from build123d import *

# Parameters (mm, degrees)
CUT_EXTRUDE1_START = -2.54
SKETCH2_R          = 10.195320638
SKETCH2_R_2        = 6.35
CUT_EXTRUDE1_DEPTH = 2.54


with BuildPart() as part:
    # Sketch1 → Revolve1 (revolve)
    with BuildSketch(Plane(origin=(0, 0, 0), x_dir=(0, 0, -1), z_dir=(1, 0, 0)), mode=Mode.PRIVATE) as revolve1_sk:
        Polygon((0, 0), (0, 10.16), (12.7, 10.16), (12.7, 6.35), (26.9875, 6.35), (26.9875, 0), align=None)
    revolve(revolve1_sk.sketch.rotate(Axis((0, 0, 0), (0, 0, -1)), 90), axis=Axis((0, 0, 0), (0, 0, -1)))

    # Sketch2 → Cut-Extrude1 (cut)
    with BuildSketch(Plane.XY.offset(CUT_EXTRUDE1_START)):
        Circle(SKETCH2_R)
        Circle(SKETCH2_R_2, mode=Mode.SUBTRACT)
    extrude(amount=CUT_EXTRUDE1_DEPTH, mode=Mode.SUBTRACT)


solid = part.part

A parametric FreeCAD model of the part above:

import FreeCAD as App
import Part
import Sketcher
Q = App.Units.Quantity


def add_polygon(sketch, points):
    """Adds a closed chain of lines whose ends are joined by coincident constraints."""
    first, n = sketch.GeometryCount, len(points)
    for a, b in zip(points, points[1:] + points[:1]):
        sketch.addGeometry(Part.LineSegment(App.Vector(*a, 0), App.Vector(*b, 0)), False)
    for i in range(n):
        sketch.addConstraint(Sketcher.Constraint("Coincident", first + i, 2, first + (i + 1) % n, 1))

doc = App.newDocument("Part")
params = doc.addObject("Spreadsheet::Sheet", "Params")
for row, (alias, value) in enumerate([
    ("sketch1_width", "0.4 in"),
    ("sketch1_height", "0.5 in"),
    ("sketch1_width2", "0.25 in"),
    ("sketch1_height2", "1.0625 in"),
    ("revolution_angle", "360 deg"),
    ("sketch2_diameter", "0.5 in"),
    ("pocket1_length", "0.1 in"),
], start=1):
    params.set(f"A{row}", alias)
    params.set(f"B{row}", "=" + value)
    params.setAlias(f"B{row}", alias)

body = doc.addObject("PartDesign::Body", "Body")

sketch1 = body.newObject("Sketcher::SketchObject", "Sketch")
sketch1.AttachmentSupport = (doc.getObject("YZ_Plane"), [""])
sketch1.MapMode = "FlatFace"
add_polygon(sketch1, [(10.2, 0), (0, 0), (0, -27), (6.3, -27), (6.3, -12.7), (10.2, -12.7)])
sketch1.addConstraint([
    Sketcher.Constraint("Horizontal", 0),
    Sketcher.Constraint("Vertical", 1),
    Sketcher.Constraint("Horizontal", 2),
    Sketcher.Constraint("Vertical", 3),
    Sketcher.Constraint("Horizontal", 4),
    Sketcher.Constraint("Vertical", 5),
    Sketcher.Constraint("Coincident", 0, 2, -1, 1),
    Sketcher.Constraint("DistanceX", 0, 2, 0, 1, Q("0.4 in")),
    Sketcher.Constraint("DistanceY", 5, 1, 5, 2, Q("0.5 in")),
    Sketcher.Constraint("DistanceX", 2, 1, 2, 2, Q("0.25 in")),
    Sketcher.Constraint("DistanceY", 1, 2, 1, 1, Q("1.0625 in")),
])
sketch1.setExpression("Constraints[13]", "Params.sketch1_width")
sketch1.setExpression("Constraints[14]", "Params.sketch1_height")
sketch1.setExpression("Constraints[15]", "Params.sketch1_width2")
sketch1.setExpression("Constraints[16]", "Params.sketch1_height2")
revolution = body.newObject("PartDesign::Revolution", "Revolution")
revolution.Profile = sketch1
revolution.ReferenceAxis = (sketch1, ["V_Axis"])
revolution.setExpression("Angle", "Params.revolution_angle")

sketch2 = body.newObject("Sketcher::SketchObject", "Sketch001")
sketch2.AttachmentSupport = (doc.getObject("XY_Plane"), [""])
sketch2.MapMode = "FlatFace"
sketch2.AttachmentOffset = App.Placement(App.Vector(0, 0, -0.1 * 25.4), App.Rotation())
sketch2.addGeometry([
    Part.Circle(App.Vector(0, 0, 0), App.Vector(0, 0, 1), 10),
    Part.Circle(App.Vector(0, 0, 0), App.Vector(0, 0, 1), 6),
], False)
sketch2.addConstraint([
    Sketcher.Constraint("Coincident", 0, 3, -1, 1),
    Sketcher.Constraint("Coincident", 1, 3, -1, 1),
    Sketcher.Constraint("Diameter", 1, Q("0.5 in")),
    Sketcher.Constraint("Diameter", 0, Q("20.390641 mm")),
])
sketch2.setExpression("Constraints[2]", "Params.sketch2_diameter")
pocket1 = body.newObject("PartDesign::Pocket", "Pocket")
pocket1.Profile = sketch2
pocket1.setExpression("Length", "Params.pocket1_length")
pocket1.Reversed = True

doc.recompute()
